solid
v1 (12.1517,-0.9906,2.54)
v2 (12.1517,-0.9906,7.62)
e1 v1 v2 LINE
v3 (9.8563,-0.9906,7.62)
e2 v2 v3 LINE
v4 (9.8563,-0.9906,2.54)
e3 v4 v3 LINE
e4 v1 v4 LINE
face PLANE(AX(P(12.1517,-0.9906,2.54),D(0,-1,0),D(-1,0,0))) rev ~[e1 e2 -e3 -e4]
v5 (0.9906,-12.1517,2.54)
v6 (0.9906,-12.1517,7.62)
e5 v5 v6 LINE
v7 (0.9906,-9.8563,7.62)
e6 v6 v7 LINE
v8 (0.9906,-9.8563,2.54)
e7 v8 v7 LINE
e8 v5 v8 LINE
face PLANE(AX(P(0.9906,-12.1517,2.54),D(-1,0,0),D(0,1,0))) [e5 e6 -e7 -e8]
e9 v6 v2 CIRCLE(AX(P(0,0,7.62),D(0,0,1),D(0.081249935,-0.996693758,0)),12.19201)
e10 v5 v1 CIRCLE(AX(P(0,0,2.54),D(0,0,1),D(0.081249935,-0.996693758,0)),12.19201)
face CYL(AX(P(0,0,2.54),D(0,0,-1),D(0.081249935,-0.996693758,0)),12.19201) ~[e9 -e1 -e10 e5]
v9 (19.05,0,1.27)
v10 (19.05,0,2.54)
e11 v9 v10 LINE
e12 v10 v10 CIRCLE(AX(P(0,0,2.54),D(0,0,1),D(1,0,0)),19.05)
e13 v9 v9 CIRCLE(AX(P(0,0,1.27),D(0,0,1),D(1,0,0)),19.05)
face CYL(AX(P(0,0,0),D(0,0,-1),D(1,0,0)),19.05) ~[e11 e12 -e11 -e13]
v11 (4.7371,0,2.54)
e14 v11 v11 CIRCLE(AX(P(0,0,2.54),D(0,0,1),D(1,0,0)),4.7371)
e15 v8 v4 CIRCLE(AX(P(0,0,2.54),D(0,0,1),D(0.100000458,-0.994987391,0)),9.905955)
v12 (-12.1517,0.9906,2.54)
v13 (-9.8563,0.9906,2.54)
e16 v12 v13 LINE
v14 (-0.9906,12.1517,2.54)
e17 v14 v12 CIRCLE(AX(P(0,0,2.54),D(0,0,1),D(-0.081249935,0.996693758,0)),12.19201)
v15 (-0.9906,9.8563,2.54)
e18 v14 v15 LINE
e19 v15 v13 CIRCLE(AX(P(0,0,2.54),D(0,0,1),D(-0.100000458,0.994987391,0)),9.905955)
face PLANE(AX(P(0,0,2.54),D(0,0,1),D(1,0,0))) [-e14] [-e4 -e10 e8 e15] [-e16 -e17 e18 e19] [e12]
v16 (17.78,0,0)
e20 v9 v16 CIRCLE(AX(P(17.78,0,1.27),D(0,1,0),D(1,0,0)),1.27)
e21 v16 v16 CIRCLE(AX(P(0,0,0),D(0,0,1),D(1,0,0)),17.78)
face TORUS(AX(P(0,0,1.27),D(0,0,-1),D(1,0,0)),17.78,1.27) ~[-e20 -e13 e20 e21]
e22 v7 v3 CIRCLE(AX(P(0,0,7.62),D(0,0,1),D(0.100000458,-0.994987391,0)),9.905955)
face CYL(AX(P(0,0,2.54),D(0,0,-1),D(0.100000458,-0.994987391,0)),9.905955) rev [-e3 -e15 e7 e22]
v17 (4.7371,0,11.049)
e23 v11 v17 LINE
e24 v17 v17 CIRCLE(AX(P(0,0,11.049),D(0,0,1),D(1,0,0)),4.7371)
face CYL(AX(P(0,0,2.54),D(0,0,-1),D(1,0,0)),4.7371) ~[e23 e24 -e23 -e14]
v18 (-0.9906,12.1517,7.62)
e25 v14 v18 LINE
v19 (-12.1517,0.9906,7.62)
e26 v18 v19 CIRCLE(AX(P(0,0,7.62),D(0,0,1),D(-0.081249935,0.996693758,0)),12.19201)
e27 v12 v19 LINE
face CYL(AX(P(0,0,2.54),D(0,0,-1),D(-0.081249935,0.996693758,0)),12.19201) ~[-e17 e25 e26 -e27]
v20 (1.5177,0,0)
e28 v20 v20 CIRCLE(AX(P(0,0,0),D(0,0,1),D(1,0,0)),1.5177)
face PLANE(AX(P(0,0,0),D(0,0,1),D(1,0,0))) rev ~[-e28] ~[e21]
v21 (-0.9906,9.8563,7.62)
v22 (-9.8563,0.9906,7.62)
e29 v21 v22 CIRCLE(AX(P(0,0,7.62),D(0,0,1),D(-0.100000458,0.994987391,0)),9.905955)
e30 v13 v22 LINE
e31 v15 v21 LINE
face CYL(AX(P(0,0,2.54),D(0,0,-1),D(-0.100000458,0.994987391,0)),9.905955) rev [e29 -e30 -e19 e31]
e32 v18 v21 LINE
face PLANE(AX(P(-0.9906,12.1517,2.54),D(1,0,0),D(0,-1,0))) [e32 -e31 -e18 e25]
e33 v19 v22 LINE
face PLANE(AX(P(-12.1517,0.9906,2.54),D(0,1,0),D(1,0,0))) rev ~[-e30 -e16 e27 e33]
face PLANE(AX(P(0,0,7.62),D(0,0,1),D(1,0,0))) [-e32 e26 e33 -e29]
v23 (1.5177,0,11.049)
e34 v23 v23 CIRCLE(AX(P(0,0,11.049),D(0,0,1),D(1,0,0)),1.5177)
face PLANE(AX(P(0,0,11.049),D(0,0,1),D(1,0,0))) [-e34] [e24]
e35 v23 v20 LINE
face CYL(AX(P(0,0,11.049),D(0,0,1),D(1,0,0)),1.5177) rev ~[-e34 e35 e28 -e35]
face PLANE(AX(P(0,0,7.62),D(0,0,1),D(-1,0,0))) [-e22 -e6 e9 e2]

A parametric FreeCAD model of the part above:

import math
import FreeCAD as App
import Part
import Sketcher
Q = App.Units.Quantity


def edges_at(feature, points):
    """Names of the edges that pass closest to the given points."""
    edges = feature.Shape.Edges
    near = lambda p: min(range(len(edges)), key=lambda i: edges[i].distToShape(Part.Vertex(*p))[0])
    return sorted({f"Edge{near(p) + 1}" for p in points})

doc = App.newDocument("Part")
body = doc.addObject("PartDesign::Body", "Body")

# Sketch on XY plane
sketch1 = body.newObject("Sketcher::SketchObject", "Sketch")
sketch1.AttachmentSupport = (doc.getObject("XY_Plane"), [""])
sketch1.MapMode = "FlatFace"
sketch1.addGeometry(Part.Circle(App.Vector(0, 0, 0), App.Vector(0, 0, 1), 19.05), False)
sketch1.addConstraint(Sketcher.Constraint("Coincident", 0, 3, -1, 1))
sketch1.addConstraint(Sketcher.Constraint("Diameter", 0, Q("1.5 in")))
pad1 = body.newObject("PartDesign::Pad", "Pad")
pad1.Profile = sketch1
pad1.Length = Q("0.1 in")

# Sketch on XY plane
sketch2 = body.newObject("Sketcher::SketchObject", "Sketch001")
sketch2.AttachmentSupport = (doc.getObject("XY_Plane"), [""])
sketch2.MapMode = "FlatFace"
sketch2.AttachmentOffset = App.Placement(App.Vector(0, 0, 0.1 * 25.4), App.Rotation())
sketch2.addGeometry(Part.Circle(App.Vector(0, 0, 0), App.Vector(0, 0, 1), 4.7371), False)
sketch2.addConstraint(Sketcher.Constraint("Coincident", 0, 3, -1, 1))
sketch2.addConstraint(Sketcher.Constraint("Diameter", 0, Q("0.373 in")))
pad2 = body.newObject("PartDesign::Pad", "Pad001")
pad2.Profile = sketch2
pad2.Length = Q("0.335 in")

# Sketch on XY plane
sketch3 = body.newObject("Sketcher::SketchObject", "Sketch002")
sketch3.AttachmentSupport = (doc.getObject("XY_Plane"), [""])
sketch3.MapMode = "FlatFace"
sketch3.AttachmentOffset = App.Placement(App.Vector(0, 0, 0.435 * 25.4), App.Rotation())
sketch3.addGeometry(Part.Circle(App.Vector(0, 0, 0), App.Vector(0, 0, 1), 1.5177), False)
sketch3.addConstraint(Sketcher.Constraint("Coincident", 0, 3, -1, 1))
sketch3.addConstraint(Sketcher.Constraint("Diameter", 0, Q("0.1195 in")))
pocket1 = body.newObject("PartDesign::Pocket", "Pocket")
pocket1.Profile = sketch3
pocket1.Type = "ThroughAll"

# Sketch on XY plane
sketch4 = body.newObject("Sketcher::SketchObject", "Sketch003")
sketch4.AttachmentSupport = (doc.getObject("XY_Plane"), [""])
sketch4.MapMode = "FlatFace"
sketch4.AttachmentOffset = App.Placement(App.Vector(0, 0, 0.1 * 25.4), App.Rotation())
sketch4.addGeometry(Part.ArcOfCircle(Part.Circle(App.Vector(0, 0, 0), App.Vector(0, 0, 1), 12.19201), math.radians(94.660416), math.radians(175.339584)), False)
sketch4.addGeometry(Part.LineSegment(App.Vector(-12.1517, 0.9906, 0), App.Vector(-9.8563, 0.9906, 0)), False)
sketch4.addGeometry(Part.ArcOfCircle(Part.Circle(App.Vector(0, 0, 0), App.Vector(0, 0, 1), 9.905955), math.radians(95.739197), math.radians(174.260803)), False)
sketch4.addGeometry(Part.LineSegment(App.Vector(-0.9906, 9.8563, 0), App.Vector(-0.9906, 12.1517, 0)), False)
sketch4.addConstraint(Sketcher.Constraint("Coincident", 0, 2, 1, 1))
sketch4.addConstraint(Sketcher.Constraint("Coincident", 1, 2, 2, 2))
sketch4.addConstraint(Sketcher.Constraint("Coincident", 2, 1, 3, 1))
sketch4.addConstraint(Sketcher.Constraint("Coincident", 3, 2, 0, 1))
sketch4.addConstraint(Sketcher.Constraint("Horizontal", 1))
sketch4.addConstraint(Sketcher.Constraint("Vertical", 3))
sketch4.addConstraint(Sketcher.Constraint("Coincident", 0, 3, -1, 1))
sketch4.addConstraint(Sketcher.Constraint("Coincident", 2, 3, -1, 1))
sketch4.addConstraint(Sketcher.Constraint("Equal", 1, 3))
sketch4.addConstraint(Sketcher.Constraint("Radius", 0, Q("0.48 in")))
sketch4.addConstraint(Sketcher.Constraint("Radius", 2, Q("0.39 in")))
sketch4.addConstraint(Sketcher.Constraint("DistanceY", -1, 1, 0, 2, Q("0.039 in")))
pad3 = body.newObject("PartDesign::Pad", "Pad002")
pad3.Profile = sketch4
pad3.Length = Q("0.2 in")
doc.recompute()

polarpattern = body.newObject("PartDesign::PolarPattern", "PolarPattern")
polarpattern.Originals = [pad3]
polarpattern.Axis = (doc.getObject("Z_Axis"), [""])
polarpattern.Angle = 360
polarpattern.Occurrences = 2
body.Tip = polarpattern
doc.recompute()

fillet = body.newObject("PartDesign::Fillet", "Fillet")
fillet.Base = (polarpattern, edges_at(polarpattern, [(-19.05, 0, 0)]))
fillet.Radius = Q("0.05 in")

doc.recompute()
